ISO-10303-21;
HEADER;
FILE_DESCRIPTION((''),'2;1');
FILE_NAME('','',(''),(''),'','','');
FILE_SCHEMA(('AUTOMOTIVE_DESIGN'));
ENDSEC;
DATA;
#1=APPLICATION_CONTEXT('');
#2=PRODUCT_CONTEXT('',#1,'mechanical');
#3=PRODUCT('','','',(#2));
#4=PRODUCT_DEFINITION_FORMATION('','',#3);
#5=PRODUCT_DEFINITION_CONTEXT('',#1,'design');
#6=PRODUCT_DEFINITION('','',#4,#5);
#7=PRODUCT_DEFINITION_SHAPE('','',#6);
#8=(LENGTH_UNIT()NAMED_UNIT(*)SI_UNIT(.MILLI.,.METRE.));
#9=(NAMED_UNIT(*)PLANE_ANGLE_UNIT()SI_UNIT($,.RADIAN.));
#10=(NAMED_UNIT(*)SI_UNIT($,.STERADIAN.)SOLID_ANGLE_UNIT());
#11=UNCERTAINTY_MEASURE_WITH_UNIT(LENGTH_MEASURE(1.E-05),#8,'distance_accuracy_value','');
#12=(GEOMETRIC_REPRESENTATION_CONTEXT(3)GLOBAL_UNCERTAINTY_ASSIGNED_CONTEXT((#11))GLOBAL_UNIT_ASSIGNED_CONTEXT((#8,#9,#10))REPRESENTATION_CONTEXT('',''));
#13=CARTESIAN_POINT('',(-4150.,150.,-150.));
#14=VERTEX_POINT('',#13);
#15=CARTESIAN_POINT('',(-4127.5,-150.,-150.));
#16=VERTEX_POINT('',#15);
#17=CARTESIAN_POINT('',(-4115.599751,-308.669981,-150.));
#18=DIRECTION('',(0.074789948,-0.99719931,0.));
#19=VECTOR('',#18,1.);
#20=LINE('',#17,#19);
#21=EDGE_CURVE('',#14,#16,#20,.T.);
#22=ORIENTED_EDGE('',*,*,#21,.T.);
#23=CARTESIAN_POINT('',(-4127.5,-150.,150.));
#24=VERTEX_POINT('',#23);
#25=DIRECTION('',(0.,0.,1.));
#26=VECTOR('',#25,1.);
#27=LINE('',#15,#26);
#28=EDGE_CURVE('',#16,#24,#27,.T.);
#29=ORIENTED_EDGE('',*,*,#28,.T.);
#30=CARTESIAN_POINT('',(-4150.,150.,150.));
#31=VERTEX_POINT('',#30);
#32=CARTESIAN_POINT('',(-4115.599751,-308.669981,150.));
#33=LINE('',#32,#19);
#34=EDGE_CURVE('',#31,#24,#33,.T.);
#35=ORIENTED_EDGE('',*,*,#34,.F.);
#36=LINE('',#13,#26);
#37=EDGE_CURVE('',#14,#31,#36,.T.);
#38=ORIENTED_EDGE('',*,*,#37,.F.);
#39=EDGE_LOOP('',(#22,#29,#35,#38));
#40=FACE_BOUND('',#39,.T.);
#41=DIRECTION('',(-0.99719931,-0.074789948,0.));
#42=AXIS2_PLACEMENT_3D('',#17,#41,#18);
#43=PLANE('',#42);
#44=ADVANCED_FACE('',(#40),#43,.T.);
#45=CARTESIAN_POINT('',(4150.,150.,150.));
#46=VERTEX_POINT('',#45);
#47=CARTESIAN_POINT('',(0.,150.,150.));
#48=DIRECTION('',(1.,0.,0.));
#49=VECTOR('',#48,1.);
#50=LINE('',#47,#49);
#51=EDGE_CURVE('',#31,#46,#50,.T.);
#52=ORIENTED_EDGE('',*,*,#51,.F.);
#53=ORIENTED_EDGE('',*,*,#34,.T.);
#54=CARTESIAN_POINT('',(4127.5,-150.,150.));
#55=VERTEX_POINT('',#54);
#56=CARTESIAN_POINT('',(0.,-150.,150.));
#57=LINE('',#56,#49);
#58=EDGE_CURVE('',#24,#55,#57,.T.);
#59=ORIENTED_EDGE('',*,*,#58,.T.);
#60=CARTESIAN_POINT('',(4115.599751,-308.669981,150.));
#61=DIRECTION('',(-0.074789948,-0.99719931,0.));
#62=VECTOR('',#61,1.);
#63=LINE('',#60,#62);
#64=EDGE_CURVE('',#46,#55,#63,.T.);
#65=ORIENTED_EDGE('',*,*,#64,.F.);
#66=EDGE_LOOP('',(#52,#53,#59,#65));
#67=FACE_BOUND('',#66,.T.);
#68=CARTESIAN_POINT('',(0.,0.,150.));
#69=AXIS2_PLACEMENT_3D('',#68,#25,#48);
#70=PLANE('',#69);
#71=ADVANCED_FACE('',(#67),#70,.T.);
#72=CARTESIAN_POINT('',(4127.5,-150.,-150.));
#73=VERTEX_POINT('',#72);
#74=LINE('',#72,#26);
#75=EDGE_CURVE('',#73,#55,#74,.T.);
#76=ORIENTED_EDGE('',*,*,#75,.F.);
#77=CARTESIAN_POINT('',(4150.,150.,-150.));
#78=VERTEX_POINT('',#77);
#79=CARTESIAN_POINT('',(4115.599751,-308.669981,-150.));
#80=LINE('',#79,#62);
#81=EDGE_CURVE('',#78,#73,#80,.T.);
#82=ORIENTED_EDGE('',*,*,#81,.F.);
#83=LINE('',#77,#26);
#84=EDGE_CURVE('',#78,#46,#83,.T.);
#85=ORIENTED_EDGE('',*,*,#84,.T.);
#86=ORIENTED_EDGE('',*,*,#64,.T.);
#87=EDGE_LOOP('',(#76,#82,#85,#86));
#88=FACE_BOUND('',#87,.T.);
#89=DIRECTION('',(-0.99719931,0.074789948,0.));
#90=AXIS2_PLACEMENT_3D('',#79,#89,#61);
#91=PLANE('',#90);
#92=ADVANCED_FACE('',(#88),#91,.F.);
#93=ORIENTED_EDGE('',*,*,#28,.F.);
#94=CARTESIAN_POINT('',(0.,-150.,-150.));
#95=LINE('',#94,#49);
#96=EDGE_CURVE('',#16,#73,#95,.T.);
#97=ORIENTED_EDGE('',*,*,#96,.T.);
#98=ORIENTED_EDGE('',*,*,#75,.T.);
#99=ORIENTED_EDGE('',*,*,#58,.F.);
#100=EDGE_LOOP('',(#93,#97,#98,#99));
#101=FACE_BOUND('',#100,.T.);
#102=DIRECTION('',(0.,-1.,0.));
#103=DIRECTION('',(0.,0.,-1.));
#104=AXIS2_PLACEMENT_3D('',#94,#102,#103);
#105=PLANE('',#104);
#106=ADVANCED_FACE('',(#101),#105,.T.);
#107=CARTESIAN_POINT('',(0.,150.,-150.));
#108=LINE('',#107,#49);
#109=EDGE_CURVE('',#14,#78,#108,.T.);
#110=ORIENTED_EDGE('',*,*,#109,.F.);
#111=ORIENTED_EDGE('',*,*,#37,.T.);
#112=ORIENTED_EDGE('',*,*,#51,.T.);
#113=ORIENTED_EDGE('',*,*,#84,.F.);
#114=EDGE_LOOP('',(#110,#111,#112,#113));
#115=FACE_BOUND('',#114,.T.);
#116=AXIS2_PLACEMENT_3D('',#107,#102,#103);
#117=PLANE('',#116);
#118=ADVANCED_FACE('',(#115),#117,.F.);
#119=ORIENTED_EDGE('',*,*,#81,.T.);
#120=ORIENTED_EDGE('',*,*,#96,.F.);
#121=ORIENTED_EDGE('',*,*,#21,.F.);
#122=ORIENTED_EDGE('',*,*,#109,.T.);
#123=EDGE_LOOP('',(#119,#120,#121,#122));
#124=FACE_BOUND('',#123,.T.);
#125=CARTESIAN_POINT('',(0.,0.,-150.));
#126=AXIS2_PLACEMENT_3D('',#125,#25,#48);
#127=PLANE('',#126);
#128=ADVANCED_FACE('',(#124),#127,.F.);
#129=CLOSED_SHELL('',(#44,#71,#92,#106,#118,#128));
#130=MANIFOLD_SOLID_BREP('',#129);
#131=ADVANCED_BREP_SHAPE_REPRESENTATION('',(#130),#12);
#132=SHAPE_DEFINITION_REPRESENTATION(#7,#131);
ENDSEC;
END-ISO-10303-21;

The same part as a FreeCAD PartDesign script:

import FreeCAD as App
import Part
import Sketcher

V = App.Vector
Q = App.Units.Quantity


def add_polygon(sketch, points):
    """Adds a closed chain of lines whose ends are joined by coincident constraints."""
    first, n = sketch.GeometryCount, len(points)
    for a, b in zip(points, points[1:] + points[:1]):
        sketch.addGeometry(Part.LineSegment(App.Vector(*a, 0), App.Vector(*b, 0)), False)
    for i in range(n):
        sketch.addConstraint(Sketcher.Constraint("Coincident", first + i, 2, first + (i + 1) % n, 1))

doc = App.newDocument("Part")
body = doc.addObject("PartDesign::Body", "Body")

# Sketch on XY plane
sketch1 = body.newObject("Sketcher::SketchObject", "Sketch")
sketch1.AttachmentSupport = (doc.getObject("XY_Plane"), [""])
sketch1.MapMode = "FlatFace"
add_polygon(sketch1, [(-4150, 150), (-4128, -150), (4128, -150), (4150, 150)])  # lines 0-3
sketch1.addConstraint(Sketcher.Constraint("Horizontal", 1))
sketch1.addConstraint(Sketcher.Constraint("Horizontal", 3))
sketch1.addConstraint(Sketcher.Constraint("Equal", 0, 2))
sketch1.addConstraint(Sketcher.Constraint("DistanceX", 1, 1, 1, 2, Q("8255 mm")))
sketch1.addConstraint(Sketcher.Constraint("DistanceX", 3, 2, 3, 1, Q("8300 mm")))
sketch1.addConstraint(Sketcher.Constraint("DistanceY", 0, 2, -1, 1, Q("150 mm")))
sketch1.addConstraint(Sketcher.Constraint("DistanceX", -1, 1, 2, 2, Q("4150 mm")))
sketch1.addConstraint(Sketcher.Constraint("DistanceY", -1, 1, 2, 2, Q("150 mm")))
pad1 = body.newObject("PartDesign::Pad", "Pad")
pad1.Profile = sketch1
pad1.Type = "TwoLengths"
pad1.Length = 150
pad1.Length2 = 150

doc.recompute()
